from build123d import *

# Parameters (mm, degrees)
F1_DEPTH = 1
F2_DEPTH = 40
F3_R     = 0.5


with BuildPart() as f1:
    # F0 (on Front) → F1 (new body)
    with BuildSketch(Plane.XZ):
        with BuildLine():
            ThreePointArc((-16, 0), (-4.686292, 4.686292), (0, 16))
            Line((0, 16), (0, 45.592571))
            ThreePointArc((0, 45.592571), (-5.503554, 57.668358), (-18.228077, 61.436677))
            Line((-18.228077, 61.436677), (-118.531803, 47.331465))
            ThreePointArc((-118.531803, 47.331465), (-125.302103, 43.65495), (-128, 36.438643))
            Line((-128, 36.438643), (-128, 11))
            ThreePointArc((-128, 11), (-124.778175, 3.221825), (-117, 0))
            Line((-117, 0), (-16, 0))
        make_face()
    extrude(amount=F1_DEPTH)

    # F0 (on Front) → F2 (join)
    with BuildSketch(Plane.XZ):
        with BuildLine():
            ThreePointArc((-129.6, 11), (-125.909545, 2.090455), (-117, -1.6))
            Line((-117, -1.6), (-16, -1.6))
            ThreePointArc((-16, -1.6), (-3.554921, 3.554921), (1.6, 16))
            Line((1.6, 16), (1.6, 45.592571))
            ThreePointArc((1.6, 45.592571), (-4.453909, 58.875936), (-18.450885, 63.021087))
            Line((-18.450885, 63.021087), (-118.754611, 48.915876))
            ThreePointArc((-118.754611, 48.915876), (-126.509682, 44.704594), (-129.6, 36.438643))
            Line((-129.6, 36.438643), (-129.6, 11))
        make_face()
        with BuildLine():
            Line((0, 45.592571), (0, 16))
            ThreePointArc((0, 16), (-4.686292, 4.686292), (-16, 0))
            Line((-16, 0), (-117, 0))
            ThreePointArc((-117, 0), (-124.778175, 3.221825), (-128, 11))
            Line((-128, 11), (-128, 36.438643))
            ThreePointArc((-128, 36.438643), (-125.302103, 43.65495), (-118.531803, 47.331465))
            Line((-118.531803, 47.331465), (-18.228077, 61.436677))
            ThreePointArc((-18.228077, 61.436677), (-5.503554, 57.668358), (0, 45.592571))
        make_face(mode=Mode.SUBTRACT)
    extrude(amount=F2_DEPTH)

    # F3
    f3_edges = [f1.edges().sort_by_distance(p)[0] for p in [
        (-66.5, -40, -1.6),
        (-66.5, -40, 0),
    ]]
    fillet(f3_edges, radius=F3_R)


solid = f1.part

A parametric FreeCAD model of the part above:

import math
import FreeCAD as App
import Part
import Sketcher


def edges_at(feature, points):
    """Names of the edges that pass closest to the given points."""
    edges = feature.Shape.Edges
    near = lambda p: min(range(len(edges)), key=lambda i: edges[i].distToShape(Part.Vertex(*p))[0])
    return sorted({f"Edge{near(p) + 1}" for p in points})

doc = App.newDocument("Part")
body = doc.addObject("PartDesign::Body", "Body")

# Sketch on XZ plane
sketch1 = doc.addObject("Sketcher::SketchObject", "Sketch")
body.addObject(sketch1)
sketch1.AttachmentSupport = (doc.XZ_Plane, [""])
sketch1.MapMode = "FlatFace"
sketch1.addGeometry([
    Part.ArcOfCircle(Part.Circle(App.Vector(-16, 16, 0), App.Vector(0, 0, 1), 16), math.radians(-90), math.radians(0)),  # 0
    Part.LineSegment(App.Vector(0, 16, 0), App.Vector(0, 46, 0)),  # 1
    Part.ArcOfCircle(Part.Circle(App.Vector(-16, 46, 0), App.Vector(0, 0, 1), 16), math.radians(0), math.radians(98)),  # 2
    Part.LineSegment(App.Vector(-18, 61, 0), App.Vector(-119, 47, 0)),  # 3
    Part.ArcOfCircle(Part.Circle(App.Vector(-117, 36, 0), App.Vector(0, 0, 1), 11), math.radians(98), math.radians(180)),  # 4
    Part.LineSegment(App.Vector(-128, 36, 0), App.Vector(-128, 11, 0)),  # 5
    Part.ArcOfCircle(Part.Circle(App.Vector(-117, 11, 0), App.Vector(0, 0, 1), 11), math.radians(180), math.radians(270)),  # 6
    Part.LineSegment(App.Vector(-117, 0, 0), App.Vector(-16, 0, 0)),  # 7
], False)
sketch1.addConstraint([
    Sketcher.Constraint("Tangent", 0, 2, 1, 1),
    Sketcher.Constraint("Tangent", 1, 2, 2, 1),
    Sketcher.Constraint("Tangent", 2, 2, 3, 1),
    Sketcher.Constraint("Tangent", 3, 2, 4, 1),
    Sketcher.Constraint("Tangent", 4, 2, 5, 1),
    Sketcher.Constraint("Tangent", 5, 2, 6, 1),
    Sketcher.Constraint("Tangent", 6, 2, 7, 1),
    Sketcher.Constraint("Tangent", 7, 2, 0, 1),
    Sketcher.Constraint("Vertical", 1),
    Sketcher.Constraint("Vertical", 5),
    Sketcher.Constraint("Horizontal", 7),
    Sketcher.Constraint("Equal", 0, 2),
    Sketcher.Constraint("Equal", 4, 6),
    Sketcher.Constraint("PointOnObject", 0, 2, -2),
    Sketcher.Constraint("PointOnObject", 6, 2, -1),
    Sketcher.Constraint("Radius", 0, 16.000002),
    Sketcher.Constraint("Radius", 4, 10.999999),
    Sketcher.Constraint("DistanceX", 7, 1, 7, 2, 101.0),
    Sketcher.Constraint("DistanceY", 1, 1, 1, 2, 29.592571),
    Sketcher.Constraint("DistanceX", 3, 2, 6, 3, 1.531802),
])
pad1 = doc.addObject("PartDesign::Pad", "Pad")
body.addObject(pad1)
pad1.Profile = sketch1
pad1.Length = 1

# Sketch on XZ plane
sketch2 = doc.addObject("Sketcher::SketchObject", "Sketch001")
body.addObject(sketch2)
sketch2.AttachmentSupport = (doc.XZ_Plane, [""])
sketch2.MapMode = "FlatFace"
sketch2.addGeometry([
    Part.ArcOfCircle(Part.Circle(App.Vector(-117, 11, 0), App.Vector(0, 0, 1), 13), math.radians(-180), math.radians(-90)),  # 0
    Part.LineSegment(App.Vector(-117, -2, 0), App.Vector(-16, -2, 0)),  # 1
    Part.ArcOfCircle(Part.Circle(App.Vector(-16, 16, 0), App.Vector(0, 0, 1), 18), math.radians(-90), math.radians(0)),  # 2
    Part.LineSegment(App.Vector(2, 16, 0), App.Vector(2, 46, 0)),  # 3
    Part.ArcOfCircle(Part.Circle(App.Vector(-16, 46, 0), App.Vector(0, 0, 1), 18), math.radians(0), math.radians(98)),  # 4
    Part.LineSegment(App.Vector(-18, 63, 0), App.Vector(-119, 49, 0)),  # 5
    Part.ArcOfCircle(Part.Circle(App.Vector(-117, 36, 0), App.Vector(0, 0, 1), 13), math.radians(98), math.radians(180)),  # 6
    Part.LineSegment(App.Vector(-130, 36, 0), App.Vector(-130, 11, 0)),  # 7
    Part.ArcOfCircle(Part.Circle(App.Vector(-16, 46, 0), App.Vector(0, 0, 1), 16), math.radians(0), math.radians(98)),  # 8
    Part.LineSegment(App.Vector(0, 46, 0), App.Vector(0, 16, 0)),  # 9
    Part.ArcOfCircle(Part.Circle(App.Vector(-16, 16, 0), App.Vector(0, 0, 1), 16), math.radians(-90), math.radians(0)),  # 10
    Part.LineSegment(App.Vector(-16, 0, 0), App.Vector(-117, 0, 0)),  # 11
    Part.ArcOfCircle(Part.Circle(App.Vector(-117, 11, 0), App.Vector(0, 0, 1), 11), math.radians(180), math.radians(270)),  # 12
    Part.LineSegment(App.Vector(-128, 11, 0), App.Vector(-128, 36, 0)),  # 13
    Part.ArcOfCircle(Part.Circle(App.Vector(-117, 36, 0), App.Vector(0, 0, 1), 11), math.radians(98), math.radians(180)),  # 14
    Part.LineSegment(App.Vector(-119, 47, 0), App.Vector(-18, 61, 0)),  # 15
], False)
sketch2.addConstraint([
    Sketcher.Constraint("Tangent", 0, 2, 1, 1),
    Sketcher.Constraint("Tangent", 1, 2, 2, 1),
    Sketcher.Constraint("Tangent", 2, 2, 3, 1),
    Sketcher.Constraint("Tangent", 3, 2, 4, 1),
    Sketcher.Constraint("Tangent", 4, 2, 5, 1),
    Sketcher.Constraint("Tangent", 5, 2, 6, 1),
    Sketcher.Constraint("Tangent", 6, 2, 7, 1),
    Sketcher.Constraint("Tangent", 7, 2, 0, 1),
    Sketcher.Constraint("Tangent", 8, 1, 9, 1),
    Sketcher.Constraint("Tangent", 9, 2, 10, 2),
    Sketcher.Constraint("Tangent", 10, 1, 11, 1),
    Sketcher.Constraint("Tangent", 11, 2, 12, 2),
    Sketcher.Constraint("Tangent", 12, 1, 13, 1),
    Sketcher.Constraint("Tangent", 13, 2, 14, 2),
    Sketcher.Constraint("Tangent", 14, 1, 15, 1),
    Sketcher.Constraint("Tangent", 15, 2, 8, 2),
    Sketcher.Constraint("Horizontal", 1),
    Sketcher.Constraint("Vertical", 3),
    Sketcher.Constraint("Vertical", 7),
    Sketcher.Constraint("Vertical", 9),
    Sketcher.Constraint("Horizontal", 11),
    Sketcher.Constraint("Vertical", 13),
    Sketcher.Constraint("Coincident", 8, 3, 4, 3),
    Sketcher.Constraint("Coincident", 10, 3, 2, 3),
    Sketcher.Constraint("Coincident", 12, 3, 0, 3),
    Sketcher.Constraint("Coincident", 14, 3, 6, 3),
    Sketcher.Constraint("Equal", 2, 4),
    Sketcher.Constraint("Equal", 0, 6),
    Sketcher.Constraint("PointOnObject", 8, 1, -2),
    Sketcher.Constraint("PointOnObject", 10, 1, -1),
    Sketcher.Constraint("Radius", 8, 16.0),
    Sketcher.Constraint("Radius", 12, 10.999999),
    Sketcher.Constraint("Radius", 0, 12.600002),
    Sketcher.Constraint("DistanceX", 1, 1, 1, 2, 101.0),
    Sketcher.Constraint("DistanceY", 3, 1, 3, 2, 29.592571),
    Sketcher.Constraint("DistanceY", 7, 2, 7, 1, 25.438643),
])
pad2 = doc.addObject("PartDesign::Pad", "Pad001")
body.addObject(pad2)
pad2.Profile = sketch2
pad2.Length = 40
doc.recompute()

fillet = doc.addObject("PartDesign::Fillet", "Fillet")
body.addObject(fillet)
fillet.Base = (pad2, edges_at(pad2, [(-66.5, -40, -1.6), (-66.5, -40, 0)]))
fillet.Radius = 0.5

doc.recompute()
